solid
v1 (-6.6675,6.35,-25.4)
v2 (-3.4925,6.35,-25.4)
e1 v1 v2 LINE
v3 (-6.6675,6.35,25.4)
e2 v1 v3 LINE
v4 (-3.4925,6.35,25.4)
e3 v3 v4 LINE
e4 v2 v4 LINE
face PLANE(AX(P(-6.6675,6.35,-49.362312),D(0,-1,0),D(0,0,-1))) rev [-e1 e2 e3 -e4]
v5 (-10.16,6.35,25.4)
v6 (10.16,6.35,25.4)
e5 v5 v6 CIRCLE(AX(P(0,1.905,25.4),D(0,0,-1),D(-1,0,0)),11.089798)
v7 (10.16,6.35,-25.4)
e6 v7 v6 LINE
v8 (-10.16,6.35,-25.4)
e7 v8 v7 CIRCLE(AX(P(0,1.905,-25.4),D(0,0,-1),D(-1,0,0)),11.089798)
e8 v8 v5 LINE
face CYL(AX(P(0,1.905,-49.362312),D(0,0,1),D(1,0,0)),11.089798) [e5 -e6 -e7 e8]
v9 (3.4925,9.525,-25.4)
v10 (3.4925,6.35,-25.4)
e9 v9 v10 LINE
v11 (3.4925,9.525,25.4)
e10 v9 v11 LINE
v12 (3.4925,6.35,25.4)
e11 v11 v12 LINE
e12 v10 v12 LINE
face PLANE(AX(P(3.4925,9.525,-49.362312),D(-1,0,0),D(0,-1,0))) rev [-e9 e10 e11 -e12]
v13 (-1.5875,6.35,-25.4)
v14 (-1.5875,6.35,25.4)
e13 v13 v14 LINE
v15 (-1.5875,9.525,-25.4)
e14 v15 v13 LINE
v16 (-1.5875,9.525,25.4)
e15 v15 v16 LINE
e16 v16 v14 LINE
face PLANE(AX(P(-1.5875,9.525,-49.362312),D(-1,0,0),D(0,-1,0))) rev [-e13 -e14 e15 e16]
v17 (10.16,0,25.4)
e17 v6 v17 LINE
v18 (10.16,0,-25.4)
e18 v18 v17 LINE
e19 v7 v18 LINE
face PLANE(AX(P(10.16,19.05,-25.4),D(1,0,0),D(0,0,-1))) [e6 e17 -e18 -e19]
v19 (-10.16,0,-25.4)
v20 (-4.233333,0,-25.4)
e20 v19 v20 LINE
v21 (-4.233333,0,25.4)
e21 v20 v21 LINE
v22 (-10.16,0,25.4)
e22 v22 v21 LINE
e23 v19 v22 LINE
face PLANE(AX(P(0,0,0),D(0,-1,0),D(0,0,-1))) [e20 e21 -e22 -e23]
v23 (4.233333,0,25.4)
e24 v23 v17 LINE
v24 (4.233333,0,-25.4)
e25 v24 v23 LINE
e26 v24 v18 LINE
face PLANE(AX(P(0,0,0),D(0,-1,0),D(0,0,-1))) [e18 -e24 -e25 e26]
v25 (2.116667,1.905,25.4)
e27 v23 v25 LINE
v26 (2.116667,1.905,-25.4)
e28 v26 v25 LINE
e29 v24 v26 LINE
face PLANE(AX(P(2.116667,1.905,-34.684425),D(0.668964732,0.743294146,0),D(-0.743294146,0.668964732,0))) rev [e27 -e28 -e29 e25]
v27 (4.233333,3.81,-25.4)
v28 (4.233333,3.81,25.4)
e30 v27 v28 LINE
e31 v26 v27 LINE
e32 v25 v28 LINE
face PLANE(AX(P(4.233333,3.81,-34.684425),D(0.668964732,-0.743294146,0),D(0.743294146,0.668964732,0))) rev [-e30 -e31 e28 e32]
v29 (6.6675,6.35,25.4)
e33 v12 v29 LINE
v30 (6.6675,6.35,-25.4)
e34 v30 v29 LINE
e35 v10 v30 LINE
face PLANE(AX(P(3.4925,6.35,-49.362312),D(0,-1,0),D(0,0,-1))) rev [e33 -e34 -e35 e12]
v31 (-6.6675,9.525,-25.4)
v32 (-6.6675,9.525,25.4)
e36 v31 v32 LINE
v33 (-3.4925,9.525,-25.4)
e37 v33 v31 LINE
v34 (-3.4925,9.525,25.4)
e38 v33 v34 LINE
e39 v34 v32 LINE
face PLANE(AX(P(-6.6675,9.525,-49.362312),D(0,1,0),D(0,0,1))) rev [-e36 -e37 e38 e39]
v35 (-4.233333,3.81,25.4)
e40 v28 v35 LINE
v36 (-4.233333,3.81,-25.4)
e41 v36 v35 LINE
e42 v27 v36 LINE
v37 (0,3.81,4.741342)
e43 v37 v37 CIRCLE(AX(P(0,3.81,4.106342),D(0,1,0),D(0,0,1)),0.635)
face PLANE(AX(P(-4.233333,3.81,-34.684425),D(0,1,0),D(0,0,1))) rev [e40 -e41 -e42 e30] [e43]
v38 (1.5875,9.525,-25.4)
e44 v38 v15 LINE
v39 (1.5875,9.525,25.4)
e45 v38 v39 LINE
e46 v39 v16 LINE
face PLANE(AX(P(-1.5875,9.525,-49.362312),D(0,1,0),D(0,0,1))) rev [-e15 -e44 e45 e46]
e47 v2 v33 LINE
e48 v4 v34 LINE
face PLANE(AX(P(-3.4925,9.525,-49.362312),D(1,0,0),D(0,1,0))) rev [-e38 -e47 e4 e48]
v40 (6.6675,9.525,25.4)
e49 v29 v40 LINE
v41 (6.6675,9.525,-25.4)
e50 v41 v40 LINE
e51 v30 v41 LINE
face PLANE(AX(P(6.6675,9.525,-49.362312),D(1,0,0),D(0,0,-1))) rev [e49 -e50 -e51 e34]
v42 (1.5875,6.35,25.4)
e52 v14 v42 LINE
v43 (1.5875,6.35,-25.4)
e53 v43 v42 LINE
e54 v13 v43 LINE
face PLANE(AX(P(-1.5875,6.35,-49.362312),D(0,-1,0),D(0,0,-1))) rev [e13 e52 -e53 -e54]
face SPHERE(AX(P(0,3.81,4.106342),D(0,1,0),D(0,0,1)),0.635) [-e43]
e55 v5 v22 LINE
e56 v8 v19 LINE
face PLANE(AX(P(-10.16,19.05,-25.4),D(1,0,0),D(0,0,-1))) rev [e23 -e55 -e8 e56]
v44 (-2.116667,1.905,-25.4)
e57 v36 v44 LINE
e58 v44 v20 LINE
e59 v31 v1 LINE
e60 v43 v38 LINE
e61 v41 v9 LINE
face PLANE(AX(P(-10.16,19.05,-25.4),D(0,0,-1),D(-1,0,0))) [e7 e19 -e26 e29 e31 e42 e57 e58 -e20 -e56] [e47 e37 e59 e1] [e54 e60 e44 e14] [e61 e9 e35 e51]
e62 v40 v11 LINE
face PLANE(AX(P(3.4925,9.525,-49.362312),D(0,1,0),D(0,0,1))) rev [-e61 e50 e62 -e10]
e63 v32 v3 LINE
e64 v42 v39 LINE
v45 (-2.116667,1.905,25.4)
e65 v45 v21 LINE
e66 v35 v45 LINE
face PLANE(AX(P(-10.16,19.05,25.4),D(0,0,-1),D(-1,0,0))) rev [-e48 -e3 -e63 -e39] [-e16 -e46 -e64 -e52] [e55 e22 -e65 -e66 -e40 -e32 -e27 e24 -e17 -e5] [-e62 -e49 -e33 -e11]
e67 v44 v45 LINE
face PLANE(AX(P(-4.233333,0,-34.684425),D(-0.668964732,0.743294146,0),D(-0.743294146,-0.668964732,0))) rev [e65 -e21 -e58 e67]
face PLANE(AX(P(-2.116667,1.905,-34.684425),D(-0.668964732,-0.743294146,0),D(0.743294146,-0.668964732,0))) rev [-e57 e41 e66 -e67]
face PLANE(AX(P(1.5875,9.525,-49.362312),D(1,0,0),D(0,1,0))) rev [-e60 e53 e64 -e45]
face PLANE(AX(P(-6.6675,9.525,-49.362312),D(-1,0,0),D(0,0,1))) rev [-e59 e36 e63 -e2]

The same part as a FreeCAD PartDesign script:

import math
import FreeCAD as App
import Part
import Sketcher
from FreeCAD import Vector
Q = App.Units.Quantity

doc = App.newDocument("Part")
body = doc.addObject("PartDesign::Body", "Body")

# Sketch on XZ plane
sketch1 = body.newObject("Sketcher::SketchObject", "Sketch")
sketch1.AttachmentSupport = (doc.getObject("XZ_Plane"), [""])
sketch1.MapMode = "FlatFace"
sketch1.addGeometry([
    Part.LineSegment(Vector(-10.16, -25.4, 0), Vector(-10.16, 25.4, 0)),
    Part.LineSegment(Vector(-10.16, 25.4, 0), Vector(10.16, 25.4, 0)),
    Part.LineSegment(Vector(10.16, 25.4, 0), Vector(10.16, -25.4, 0)),
    Part.LineSegment(Vector(10.16, -25.4, 0), Vector(-10.16, -25.4, 0)),
], False)
sketch1.addConstraint([
    Sketcher.Constraint("Coincident", 0, 2, 1, 1),
    Sketcher.Constraint("Coincident", 1, 2, 2, 1),
    Sketcher.Constraint("Coincident", 2, 2, 3, 1),
    Sketcher.Constraint("Coincident", 3, 2, 0, 1),
    Sketcher.Constraint("Vertical", 0),
    Sketcher.Constraint("Horizontal", 1),
    Sketcher.Constraint("Vertical", 2),
    Sketcher.Constraint("Horizontal", 3),
    Sketcher.Constraint("Symmetric", 0, 2, 2, 2, -1, 1),
    Sketcher.Constraint("DistanceY", 0, 1, 0, 2, Q("2 in")),
    Sketcher.Constraint("DistanceX", 1, 1, 1, 2, Q("0.8 in")),
])
pad1 = body.newObject("PartDesign::Pad", "Pad")
pad1.Profile = sketch1
pad1.Length = Q("0.75 in")
pad1.Reversed = True

# Sketch on XY plane
sketch2 = body.newObject("Sketcher::SketchObject", "Sketch001")
sketch2.AttachmentSupport = (doc.getObject("XY_Plane"), [""])
sketch2.MapMode = "FlatFace"
sketch2.AttachmentOffset = App.Placement(Vector(0, 0, 1 * 25.4), App.Rotation())
sketch2.addGeometry([
    Part.LineSegment(Vector(4.233333, 3.81, 0), Vector(-4.233333, 3.81, 0)),  # 0
    Part.LineSegment(Vector(-4.233333, 3.81, 0), Vector(-2.116667, 1.905, 0)),  # 1
    Part.LineSegment(Vector(-2.116667, 1.905, 0), Vector(-4.233333, 0, 0)),  # 2
    Part.LineSegment(Vector(-4.233333, 0, 0), Vector(4.233333, 0, 0)),  # 3
    Part.LineSegment(Vector(4.233333, 0, 0), Vector(2.116667, 1.905, 0)),  # 4
    Part.LineSegment(Vector(2.116667, 1.905, 0), Vector(4.233333, 3.81, 0)),  # 5
], False)
sketch2.addConstraint([
    Sketcher.Constraint("Coincident", 0, 2, 1, 1),
    Sketcher.Constraint("Coincident", 1, 2, 2, 1),
    Sketcher.Constraint("Coincident", 2, 2, 3, 1),
    Sketcher.Constraint("Coincident", 3, 2, 4, 1),
    Sketcher.Constraint("Coincident", 4, 2, 5, 1),
    Sketcher.Constraint("Coincident", 5, 2, 0, 1),
    Sketcher.Constraint("Horizontal", 0),
    Sketcher.Constraint("Horizontal", 3),
    Sketcher.Constraint("Symmetric", 2, 2, 3, 2, -1, 1),
    Sketcher.Constraint("Symmetric", 1, 2, 4, 2, -2),
    Sketcher.Constraint("Parallel", 1, 4),
    Sketcher.Constraint("Parallel", 2, 5),
    Sketcher.Constraint("Vertical", 0, 2, 2, 2),
    Sketcher.Constraint("DistanceY", -1, 1, 0, 2, Q("0.15 in")),
    Sketcher.Constraint("DistanceX", 1, 2, 3, 2, Q("0.25 in")),
    Sketcher.Constraint("DistanceX", 0, 2, 0, 1, Q("8.466667 mm")),
])
pocket1 = body.newObject("PartDesign::Pocket", "Pocket")
pocket1.Profile = sketch2
pocket1.Length = Q("2 in")

# Sketch on XZ plane
sketch3 = body.newObject("Sketcher::SketchObject", "Sketch002")
sketch3.AttachmentSupport = (doc.getObject("XZ_Plane"), [""])
sketch3.MapMode = "FlatFace"
sketch3.AttachmentOffset = App.Placement(Vector(0, 0, -0.15 * 25.4), App.Rotation())
sketch3.addGeometry([
    Part.LineSegment(Vector(0, 4.741342, 0), Vector(0, 3.471342, 0)),
    Part.ArcOfCircle(Part.Circle(Vector(0, 4.106342, 0), Vector(0, 0, 1), 0.635), math.radians(-90), math.radians(90)),
], False)
sketch3.addConstraint([
    Sketcher.Constraint("Coincident", 0, 1, 1, 2),
    Sketcher.Constraint("Coincident", 1, 1, 0, 2),
    Sketcher.Constraint("Vertical", 0),
    Sketcher.Constraint("PointOnObject", 1, 3, -2),
    Sketcher.Constraint("PointOnObject", 0, 1, -2),
    Sketcher.Constraint("Radius", 1, Q("0.025 in")),
    Sketcher.Constraint("DistanceY", -1, 1, 1, 3, Q("4.106342 mm")),
])
revolution = body.newObject("PartDesign::Revolution", "Revolution")
revolution.Profile = sketch3
revolution.ReferenceAxis = (sketch3, ["V_Axis"])
revolution.Angle = 360

# Sketch on XY plane
sketch4 = body.newObject("Sketcher::SketchObject", "Sketch003")
sketch4.AttachmentSupport = (doc.getObject("XY_Plane"), [""])
sketch4.MapMode = "FlatFace"
sketch4.AttachmentOffset = App.Placement(Vector(0, 0, 1 * 25.4), App.Rotation())
sketch4.addGeometry([
    Part.LineSegment(Vector(-10.16, 19.05, 0), Vector(-10.16, 6.35, 0)),  # 0
    Part.ArcOfCircle(Part.Circle(Vector(0, 1.905, 0), Vector(0, 0, 1), 11.089798), math.radians(23.629378), math.radians(156.370622)),  # 1
    Part.LineSegment(Vector(10.16, 6.35, 0), Vector(10.16, 19.05, 0)),  # 2
    Part.LineSegment(Vector(10.16, 19.05, 0), Vector(-10.16, 19.05, 0)),  # 3
    Part.LineSegment(Vector(-1.5875, 9.525, 0), Vector(-1.5875, 6.35, 0)),  # 4
    Part.LineSegment(Vector(-1.5875, 6.35, 0), Vector(1.5875, 6.35, 0)),  # 5
    Part.LineSegment(Vector(1.5875, 6.35, 0), Vector(1.5875, 9.525, 0)),  # 6
    Part.LineSegment(Vector(1.5875, 9.525, 0), Vector(-1.5875, 9.525, 0)),  # 7
    Part.LineSegment(Vector(-6.6675, 9.525, 0), Vector(-6.6675, 6.35, 0)),  # 8
    Part.LineSegment(Vector(-6.6675, 6.35, 0), Vector(-3.4925, 6.35, 0)),  # 9
    Part.LineSegment(Vector(-3.4925, 6.35, 0), Vector(-3.4925, 9.525, 0)),  # 10
    Part.LineSegment(Vector(-3.4925, 9.525, 0), Vector(-6.6675, 9.525, 0)),  # 11
    Part.LineSegment(Vector(3.4925, 9.525, 0), Vector(3.4925, 6.35, 0)),  # 12
    Part.LineSegment(Vector(3.4925, 6.35, 0), Vector(6.6675, 6.35, 0)),  # 13
    Part.LineSegment(Vector(6.6675, 6.35, 0), Vector(6.6675, 9.525, 0)),  # 14
    Part.LineSegment(Vector(6.6675, 9.525, 0), Vector(3.4925, 9.525, 0)),  # 15
], False)
sketch4.addConstraint([
    Sketcher.Constraint("Coincident", 0, 2, 1, 2),
    Sketcher.Constraint("Coincident", 1, 1, 2, 1),
    Sketcher.Constraint("Coincident", 2, 2, 3, 1),
    Sketcher.Constraint("Coincident", 3, 2, 0, 1),
    Sketcher.Constraint("Coincident", 4, 2, 5, 1),
    Sketcher.Constraint("Coincident", 5, 2, 6, 1),
    Sketcher.Constraint("Coincident", 6, 2, 7, 1),
    Sketcher.Constraint("Coincident", 7, 2, 4, 1),
    Sketcher.Constraint("Coincident", 8, 2, 9, 1),
    Sketcher.Constraint("Coincident", 9, 2, 10, 1),
    Sketcher.Constraint("Coincident", 10, 2, 11, 1),
    Sketcher.Constraint("Coincident", 11, 2, 8, 1),
    Sketcher.Constraint("Coincident", 12, 2, 13, 1),
    Sketcher.Constraint("Coincident", 13, 2, 14, 1),
    Sketcher.Constraint("Coincident", 14, 2, 15, 1),
    Sketcher.Constraint("Coincident", 15, 2, 12, 1),
    Sketcher.Constraint("Vertical", 0),
    Sketcher.Constraint("Vertical", 2),
    Sketcher.Constraint("Horizontal", 3),
    Sketcher.Constraint("Vertical", 4),
    Sketcher.Constraint("Horizontal", 5),
    Sketcher.Constraint("Vertical", 6),
    Sketcher.Constraint("Horizontal", 7),
    Sketcher.Constraint("Vertical", 8),
    Sketcher.Constraint("Horizontal", 9),
    Sketcher.Constraint("Vertical", 10),
    Sketcher.Constraint("Horizontal", 11),
    Sketcher.Constraint("Vertical", 12),
    Sketcher.Constraint("Horizontal", 13),
    Sketcher.Constraint("Vertical", 14),
    Sketcher.Constraint("Horizontal", 15),
    Sketcher.Constraint("Symmetric", 0, 2, 1, 1, -2),
    Sketcher.Constraint("Symmetric", 9, 2, 12, 2, -2),
    Sketcher.Constraint("Symmetric", 11, 2, 14, 2, -2),
    Sketcher.Constraint("Horizontal", 1, 1, 4, 2),
    Sketcher.Constraint("Horizontal", 5, 2, 8, 2),
    Sketcher.Constraint("Horizontal", 7, 2, 10, 2),
    Sketcher.Constraint("Equal", 7, 9),
    Sketcher.Constraint("Equal", 15, 4),
    Sketcher.Constraint("DistanceX", 3, 2, 3, 1, Q("0.8 in")),
    Sketcher.Constraint("DistanceY", 0, 2, 0, 1, Q("0.5 in")),
    Sketcher.Constraint("DistanceY", 1, 3, 6, 2, Q("0.3 in")),
    Sketcher.Constraint("DistanceX", 8, 2, 4, 2, Q("0.2 in")),
    Sketcher.Constraint("DistanceX", 4, 2, 12, 2, Q("0.2 in")),
    Sketcher.Constraint("DistanceX", 5, 1, 5, 2, Q("0.125 in")),
    Sketcher.Constraint("DistanceY", -1, 1, 0, 2, Q("0.25 in")),
])
pocket2 = body.newObject("PartDesign::Pocket", "Pocket001")
pocket2.Profile = sketch4
pocket2.Length = Q("2 in")

doc.recompute()
